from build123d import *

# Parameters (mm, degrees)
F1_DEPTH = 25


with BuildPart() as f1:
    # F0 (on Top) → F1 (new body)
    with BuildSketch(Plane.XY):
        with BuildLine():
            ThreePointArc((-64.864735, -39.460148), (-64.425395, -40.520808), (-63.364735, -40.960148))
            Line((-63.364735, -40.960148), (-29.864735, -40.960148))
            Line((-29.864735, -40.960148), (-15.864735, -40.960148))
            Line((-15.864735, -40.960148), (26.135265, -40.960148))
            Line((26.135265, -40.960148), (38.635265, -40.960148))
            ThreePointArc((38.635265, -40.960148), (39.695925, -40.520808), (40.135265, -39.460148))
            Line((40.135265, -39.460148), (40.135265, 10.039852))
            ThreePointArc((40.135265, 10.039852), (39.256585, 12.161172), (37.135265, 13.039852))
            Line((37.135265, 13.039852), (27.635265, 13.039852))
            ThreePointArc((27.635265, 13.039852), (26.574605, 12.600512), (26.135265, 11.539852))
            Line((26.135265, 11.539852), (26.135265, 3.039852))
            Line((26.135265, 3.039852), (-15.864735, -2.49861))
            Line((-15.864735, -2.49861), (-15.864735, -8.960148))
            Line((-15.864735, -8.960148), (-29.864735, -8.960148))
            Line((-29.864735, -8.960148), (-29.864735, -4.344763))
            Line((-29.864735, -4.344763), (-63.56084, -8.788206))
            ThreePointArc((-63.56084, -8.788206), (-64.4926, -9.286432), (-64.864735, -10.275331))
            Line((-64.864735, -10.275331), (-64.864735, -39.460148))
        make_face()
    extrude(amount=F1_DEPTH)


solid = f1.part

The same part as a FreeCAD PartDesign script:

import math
import FreeCAD as App
import Part
import Sketcher

V = App.Vector
Q = App.Units.Quantity

doc = App.newDocument("Part")
params = doc.addObject("Spreadsheet::Sheet", "Params")
for row, (alias, value) in enumerate([
    ("sketch1_radius", "3.000001 mm"),
    ("sketch1_radius2", "1.500001 mm"),
    ("sketch1_width", "102 mm"),
    ("sketch1_width2", "14 mm"),
    ("sketch1_width3", "9.5 mm"),
    ("pad1_length", "25 mm"),
], start=1):
    params.set(f"A{row}", alias)
    params.set(f"B{row}", "=" + value)
    params.setAlias(f"B{row}", alias)

body = doc.addObject("PartDesign::Body", "Body")

# Sketch on XY plane
sketch1 = body.newObject("Sketcher::SketchObject", "Sketch")
sketch1.AttachmentSupport = (doc.getObject("XY_Plane"), [""])
sketch1.MapMode = "FlatFace"
sketch1.addGeometry([
    Part.ArcOfCircle(Part.Circle(V(-63.4, -39.5, 0), V(0, 0, 1), 1.5), math.radians(-180), math.radians(-90)),  # 0
    Part.LineSegment(V(-63.4, -41, 0), V(38.6, -41, 0)),  # 1
    Part.ArcOfCircle(Part.Circle(V(38.6, -39.5, 0), V(0, 0, 1), 1.5), math.radians(-90), math.radians(0)),  # 2
    Part.LineSegment(V(40.1, -39.5, 0), V(40.1, 10, 0)),  # 3
    Part.ArcOfCircle(Part.Circle(V(37.1, 10, 0), V(0, 0, 1), 3), math.radians(0), math.radians(90)),  # 4
    Part.LineSegment(V(37.1, 13, 0), V(27.6, 13, 0)),  # 5
    Part.ArcOfCircle(Part.Circle(V(27.6, 11.5, 0), V(0, 0, 1), 1.5), math.radians(90), math.radians(180)),  # 6
    Part.LineSegment(V(26.1, 11.5, 0), V(26.1, 3, 0)),  # 7
    Part.LineSegment(V(26.1, 3, 0), V(-15.9, -2.5, 0)),  # 8
    Part.LineSegment(V(-15.9, -2.5, 0), V(-15.9, -9, 0)),  # 9
    Part.LineSegment(V(-15.9, -9, 0), V(-29.9, -9, 0)),  # 10
    Part.LineSegment(V(-29.9, -9, 0), V(-29.9, -4.3, 0)),  # 11
    Part.LineSegment(V(-29.9, -4.3, 0), V(-63.6, -8.8, 0)),  # 12
    Part.ArcOfCircle(Part.Circle(V(-63.4, -10.3, 0), V(0, 0, 1), 1.5), math.radians(98), math.radians(180)),  # 13
    Part.LineSegment(V(-64.9, -10.3, 0), V(-64.9, -39.5, 0)),  # 14
], False)
sketch1.addConstraint([
    Sketcher.Constraint("Tangent", 0, 2, 1, 1),
    Sketcher.Constraint("Tangent", 1, 2, 2, 1),
    Sketcher.Constraint("Tangent", 2, 2, 3, 1),
    Sketcher.Constraint("Tangent", 3, 2, 4, 1),
    Sketcher.Constraint("Tangent", 4, 2, 5, 1),
    Sketcher.Constraint("Tangent", 5, 2, 6, 1),
    Sketcher.Constraint("Tangent", 6, 2, 7, 1),
    Sketcher.Constraint("Coincident", 7, 2, 8, 1),
    Sketcher.Constraint("Coincident", 8, 2, 9, 1),
    Sketcher.Constraint("Coincident", 9, 2, 10, 1),
    Sketcher.Constraint("Coincident", 10, 2, 11, 1),
    Sketcher.Constraint("Coincident", 11, 2, 12, 1),
    Sketcher.Constraint("Tangent", 12, 2, 13, 1),
    Sketcher.Constraint("Tangent", 13, 2, 14, 1),
    Sketcher.Constraint("Tangent", 14, 2, 0, 1),
    Sketcher.Constraint("Horizontal", 1),
    Sketcher.Constraint("Vertical", 3),
    Sketcher.Constraint("Horizontal", 5),
    Sketcher.Constraint("Vertical", 7),
    Sketcher.Constraint("Vertical", 9),
    Sketcher.Constraint("Horizontal", 10),
    Sketcher.Constraint("Vertical", 11),
    Sketcher.Constraint("Vertical", 14),
    Sketcher.Constraint("Equal", 0, 2),
    Sketcher.Constraint("Equal", 2, 6),
    Sketcher.Constraint("Parallel", 8, 12),
    Sketcher.Constraint("Radius", 4, Q("3.000001 mm")),
    Sketcher.Constraint("Radius", 0, Q("1.500001 mm")),
    Sketcher.Constraint("DistanceX", 1, 1, 1, 2, Q("102 mm")),
    Sketcher.Constraint("DistanceX", 10, 2, 10, 1, Q("14 mm")),
    Sketcher.Constraint("DistanceX", 5, 2, 5, 1, Q("9.5 mm")),
    Sketcher.Constraint("DistanceY", 3, 1, 3, 2, Q("49.5 mm")),
    Sketcher.Constraint("DistanceY", 7, 2, 7, 1, Q("8.5 mm")),
    Sketcher.Constraint("DistanceX", 13, 3, 2, 3, Q("102.000001 mm")),
    Sketcher.Constraint("DistanceX", 8, 2, 7, 2, Q("42 mm")),
    Sketcher.Constraint("DistanceY", 9, 2, 7, 2, Q("12 mm")),
    Sketcher.Constraint("Distance", 8, Q("42.363599 mm")),
    Sketcher.Constraint("DistanceY", 11, 1, 11, 2, Q("4.615385 mm")),
    Sketcher.Constraint("DistanceY", -1, 1, 4, 3, Q("10.039851 mm")),
    Sketcher.Constraint("DistanceX", 12, 2, -1, 1, Q("63.56084 mm")),
])
sketch1.setExpression("Constraints[26]", "Params.sketch1_radius")
sketch1.setExpression("Constraints[27]", "Params.sketch1_radius2")
sketch1.setExpression("Constraints[28]", "Params.sketch1_width")
sketch1.setExpression("Constraints[29]", "Params.sketch1_width2")
sketch1.setExpression("Constraints[30]", "Params.sketch1_width3")
pad1 = body.newObject("PartDesign::Pad", "Pad")
pad1.Profile = sketch1
pad1.setExpression("Length", "Params.pad1_length")

doc.recompute()
